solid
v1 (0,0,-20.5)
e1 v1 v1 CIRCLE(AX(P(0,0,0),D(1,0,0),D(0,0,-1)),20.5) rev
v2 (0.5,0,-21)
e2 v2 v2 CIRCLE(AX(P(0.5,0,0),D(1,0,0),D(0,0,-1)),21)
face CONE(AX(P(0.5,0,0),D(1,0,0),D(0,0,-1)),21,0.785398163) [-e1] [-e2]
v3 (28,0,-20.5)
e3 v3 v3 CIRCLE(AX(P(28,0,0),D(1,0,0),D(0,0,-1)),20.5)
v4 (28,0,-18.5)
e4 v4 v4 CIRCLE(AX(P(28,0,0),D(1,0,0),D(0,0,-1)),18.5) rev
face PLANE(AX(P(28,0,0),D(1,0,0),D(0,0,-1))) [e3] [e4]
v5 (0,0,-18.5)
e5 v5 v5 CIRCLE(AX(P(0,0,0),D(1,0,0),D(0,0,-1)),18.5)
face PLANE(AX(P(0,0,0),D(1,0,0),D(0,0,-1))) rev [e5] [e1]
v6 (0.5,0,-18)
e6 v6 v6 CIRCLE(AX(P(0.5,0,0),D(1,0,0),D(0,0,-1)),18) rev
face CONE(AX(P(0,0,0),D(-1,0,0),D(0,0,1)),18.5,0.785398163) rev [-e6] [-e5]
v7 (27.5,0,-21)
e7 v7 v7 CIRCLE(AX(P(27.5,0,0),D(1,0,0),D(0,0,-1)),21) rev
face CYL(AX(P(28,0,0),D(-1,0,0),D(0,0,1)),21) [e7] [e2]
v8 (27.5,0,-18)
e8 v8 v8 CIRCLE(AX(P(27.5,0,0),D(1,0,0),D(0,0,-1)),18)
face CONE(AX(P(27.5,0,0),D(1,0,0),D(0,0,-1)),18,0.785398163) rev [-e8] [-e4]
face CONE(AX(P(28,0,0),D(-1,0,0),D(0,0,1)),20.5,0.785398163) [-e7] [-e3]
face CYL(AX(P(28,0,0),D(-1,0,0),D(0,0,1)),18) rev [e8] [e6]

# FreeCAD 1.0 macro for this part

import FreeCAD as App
import Part
import Sketcher
from FreeCAD import Vector


def edges_at(feature, points):
    """Names of the edges that pass closest to the given points."""
    edges = feature.Shape.Edges
    near = lambda p: min(range(len(edges)), key=lambda i: edges[i].distToShape(Part.Vertex(*p))[0])
    return sorted({f"Edge{near(p) + 1}" for p in points})

doc = App.newDocument("Part")
body = doc.addObject("PartDesign::Body", "Body")

sketch1 = doc.addObject("Sketcher::SketchObject", "Sketch")
body.addObject(sketch1)
sketch1.AttachmentSupport = (doc.YZ_Plane, [""])
sketch1.MapMode = "FlatFace"
sketch1.addGeometry(Part.Circle(Vector(0, 0, 0), Vector(0, 0, 1), 21), False)
sketch1.addGeometry(Part.Circle(Vector(0, 0, 0), Vector(0, 0, 1), 18), False)
sketch1.addConstraint(Sketcher.Constraint("Coincident", 0, 3, -1, 1))
sketch1.addConstraint(Sketcher.Constraint("Coincident", 1, 3, -1, 1))
sketch1.addConstraint(Sketcher.Constraint("Diameter", 0, 42.0))
sketch1.addConstraint(Sketcher.Constraint("Diameter", 1, 36.0))
pad1 = doc.addObject("PartDesign::Pad", "Pad")
body.addObject(pad1)
pad1.Profile = sketch1
pad1.Length = 28
doc.recompute()

chamfer = doc.addObject("PartDesign::Chamfer", "Chamfer")
body.addObject(chamfer)
chamfer.Base = (pad1, edges_at(pad1, [
    (0, 0, 21),
    (28, 0, 21),
    (0, 0, 18),
    (28, 0, 18),
]))
chamfer.Size = 0.5

doc.recompute()
